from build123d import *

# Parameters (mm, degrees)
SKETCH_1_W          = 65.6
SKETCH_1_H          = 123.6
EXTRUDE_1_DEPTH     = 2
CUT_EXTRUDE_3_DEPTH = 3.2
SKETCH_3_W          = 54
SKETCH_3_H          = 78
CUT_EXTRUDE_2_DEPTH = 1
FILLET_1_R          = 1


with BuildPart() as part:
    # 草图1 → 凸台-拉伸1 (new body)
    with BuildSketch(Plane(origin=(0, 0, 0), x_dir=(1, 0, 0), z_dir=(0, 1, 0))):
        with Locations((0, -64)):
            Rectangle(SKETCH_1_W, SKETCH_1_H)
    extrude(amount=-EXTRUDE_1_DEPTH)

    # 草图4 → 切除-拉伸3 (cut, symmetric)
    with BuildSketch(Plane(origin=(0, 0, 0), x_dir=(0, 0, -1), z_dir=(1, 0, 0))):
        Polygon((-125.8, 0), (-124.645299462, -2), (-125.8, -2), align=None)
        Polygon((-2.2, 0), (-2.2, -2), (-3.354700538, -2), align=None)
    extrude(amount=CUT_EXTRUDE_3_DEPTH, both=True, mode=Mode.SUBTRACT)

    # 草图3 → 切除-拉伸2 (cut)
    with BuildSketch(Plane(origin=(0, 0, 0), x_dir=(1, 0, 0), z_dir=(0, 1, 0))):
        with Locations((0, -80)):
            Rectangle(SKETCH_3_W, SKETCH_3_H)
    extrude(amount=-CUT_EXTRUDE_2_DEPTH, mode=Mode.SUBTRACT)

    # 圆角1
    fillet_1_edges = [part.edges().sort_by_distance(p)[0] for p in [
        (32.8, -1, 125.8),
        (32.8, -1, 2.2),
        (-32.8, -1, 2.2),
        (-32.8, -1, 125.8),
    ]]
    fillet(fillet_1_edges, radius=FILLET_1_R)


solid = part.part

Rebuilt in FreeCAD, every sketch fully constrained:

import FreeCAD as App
import Part
import Sketcher
from FreeCAD import Vector
Q = App.Units.Quantity


def edges_at(feature, points):
    """Names of the edges that pass closest to the given points."""
    edges = feature.Shape.Edges
    near = lambda p: min(range(len(edges)), key=lambda i: edges[i].distToShape(Part.Vertex(*p))[0])
    return sorted({f"Edge{near(p) + 1}" for p in points})


def add_polygon(sketch, points):
    """Adds a closed chain of lines whose ends are joined by coincident constraints."""
    first, n = sketch.GeometryCount, len(points)
    for a, b in zip(points, points[1:] + points[:1]):
        sketch.addGeometry(Part.LineSegment(App.Vector(*a, 0), App.Vector(*b, 0)), False)
    for i in range(n):
        sketch.addConstraint(Sketcher.Constraint("Coincident", first + i, 2, first + (i + 1) % n, 1))

doc = App.newDocument("Part")
body = doc.addObject("PartDesign::Body", "Body")

sketch1 = body.newObject("Sketcher::SketchObject", "Sketch")
sketch1.AttachmentSupport = (doc.getObject("XZ_Plane"), [""])
sketch1.MapMode = "FlatFace"
add_polygon(sketch1, [(-33, 2), (-33, 126), (33, 126), (33, 2)])
sketch1.addConstraint(Sketcher.Constraint("Vertical", 0))
sketch1.addConstraint(Sketcher.Constraint("Horizontal", 1))
sketch1.addConstraint(Sketcher.Constraint("Vertical", 2))
sketch1.addConstraint(Sketcher.Constraint("Horizontal", 3))
sketch1.addConstraint(Sketcher.Constraint("DistanceX", 1, 1, 1, 2, 65.6))
sketch1.addConstraint(Sketcher.Constraint("DistanceY", 0, 1, 0, 2, 123.6))
sketch1.addConstraint(Sketcher.Constraint("DistanceX", 0, 2, -1, 1, 32.8))
sketch1.addConstraint(Sketcher.Constraint("DistanceY", -1, 1, 0, 2, 125.8))
pad1 = body.newObject("PartDesign::Pad", "Pad")
pad1.Profile = sketch1
pad1.Length = 2

sketch2 = body.newObject("Sketcher::SketchObject", "Sketch001")
sketch2.AttachmentSupport = (doc.getObject("YZ_Plane"), [""])
sketch2.MapMode = "FlatFace"
add_polygon(sketch2, [(-2, 124.6), (0, 125.8), (-2, 125.8)])
add_polygon(sketch2, [(-2, 2.2), (0, 2.2), (-2, 3.4)])
sketch2.addConstraint(Sketcher.Constraint("Horizontal", 1))
sketch2.addConstraint(Sketcher.Constraint("Vertical", 2))
sketch2.addConstraint(Sketcher.Constraint("Horizontal", 3))
sketch2.addConstraint(Sketcher.Constraint("Vertical", 5))
sketch2.addConstraint(Sketcher.Constraint("PointOnObject", 0, 2, -2))
sketch2.addConstraint(Sketcher.Constraint("PointOnObject", 3, 2, -2))
sketch2.addConstraint(Sketcher.Constraint("Vertical", 2, 2, 4, 2))
sketch2.addConstraint(Sketcher.Constraint("Equal", 2, 5))
sketch2.addConstraint(Sketcher.Constraint("DistanceX", 1, 2, 1, 1, 2.0))
sketch2.addConstraint(Sketcher.Constraint("Angle", 0, Q("30 deg")))
sketch2.addConstraint(Sketcher.Constraint("DistanceY", -1, 1, 0, 2, 125.8))
sketch2.addConstraint(Sketcher.Constraint("DistanceY", -1, 1, 3, 2, 2.2))
pocket1 = body.newObject("PartDesign::Pocket", "Pocket")
pocket1.Profile = sketch2
pocket1.Length = 6.4
pocket1.Midplane = True

sketch3 = body.newObject("Sketcher::SketchObject", "Sketch002")
sketch3.AttachmentSupport = (doc.getObject("XZ_Plane"), [""])
sketch3.MapMode = "FlatFace"
add_polygon(sketch3, [(-27, 41), (-27, 119), (27, 119), (27, 41)])
sketch3.addConstraint(Sketcher.Constraint("Vertical", 0))
sketch3.addConstraint(Sketcher.Constraint("Horizontal", 1))
sketch3.addConstraint(Sketcher.Constraint("Vertical", 2))
sketch3.addConstraint(Sketcher.Constraint("Horizontal", 3))
sketch3.addConstraint(Sketcher.Constraint("DistanceX", 1, 1, 1, 2, 54.0))
sketch3.addConstraint(Sketcher.Constraint("DistanceY", 0, 1, 0, 2, 78.0))
sketch3.addConstraint(Sketcher.Constraint("DistanceX", 0, 2, -1, 1, 27.0))
sketch3.addConstraint(Sketcher.Constraint("DistanceY", -1, 1, 0, 2, 119.0))
pocket2 = body.newObject("PartDesign::Pocket", "Pocket001")
pocket2.Profile = sketch3
pocket2.Length = 1
pocket2.Reversed = True
doc.recompute()

fillet = body.newObject("PartDesign::Fillet", "Fillet")
fillet.Base = (pocket2, edges_at(pocket2, [
    (32.8, -1, 125.8),
    (32.8, -1, 2.2),
    (-32.8, -1, 2.2),
    (-32.8, -1, 125.8),
]))
fillet.Radius = 1

doc.recompute()
